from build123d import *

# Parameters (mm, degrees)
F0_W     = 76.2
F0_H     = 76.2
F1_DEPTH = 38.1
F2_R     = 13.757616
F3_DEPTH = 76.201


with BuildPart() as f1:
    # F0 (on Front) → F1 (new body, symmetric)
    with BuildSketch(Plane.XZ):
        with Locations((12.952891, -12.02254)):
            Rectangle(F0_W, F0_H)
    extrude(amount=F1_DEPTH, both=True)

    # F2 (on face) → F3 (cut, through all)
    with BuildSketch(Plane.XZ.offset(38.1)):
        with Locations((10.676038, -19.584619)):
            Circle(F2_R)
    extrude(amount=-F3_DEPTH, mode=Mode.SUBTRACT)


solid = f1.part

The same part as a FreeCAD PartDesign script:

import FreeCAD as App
import Part
import Sketcher
Q = App.Units.Quantity


def add_polygon(sketch, points):
    """Adds a closed chain of lines whose ends are joined by coincident constraints."""
    first, n = sketch.GeometryCount, len(points)
    for a, b in zip(points, points[1:] + points[:1]):
        sketch.addGeometry(Part.LineSegment(App.Vector(*a, 0), App.Vector(*b, 0)), False)
    for i in range(n):
        sketch.addConstraint(Sketcher.Constraint("Coincident", first + i, 2, first + (i + 1) % n, 1))

doc = App.newDocument("Part")
body = doc.addObject("PartDesign::Body", "Body")

sketch1 = body.newObject("Sketcher::SketchObject", "Sketch")
sketch1.AttachmentSupport = (doc.getObject("XZ_Plane"), [""])
sketch1.MapMode = "FlatFace"
add_polygon(sketch1, [(-25.147109, 26.07746), (-25.147109, -50.12254), (51.052891, -50.12254), (51.052891, 26.07746)])
sketch1.addConstraint(Sketcher.Constraint("Vertical", 0))
sketch1.addConstraint(Sketcher.Constraint("Horizontal", 1))
sketch1.addConstraint(Sketcher.Constraint("Vertical", 2))
sketch1.addConstraint(Sketcher.Constraint("Horizontal", 3))
sketch1.addConstraint(Sketcher.Constraint("Equal", 3, 0))
sketch1.addConstraint(Sketcher.Constraint("DistanceX", 1, 1, 1, 2, Q("3 in")))
sketch1.addConstraint(Sketcher.Constraint("DistanceX", 0, 2, -1, 1, 25.147109))
sketch1.addConstraint(Sketcher.Constraint("DistanceY", 0, 2, -1, 1, 50.12254))
pad1 = body.newObject("PartDesign::Pad", "Pad")
pad1.Profile = sketch1
pad1.Length = Q("3 in")
pad1.Midplane = True

sketch2 = body.newObject("Sketcher::SketchObject", "Sketch001")
sketch2.AttachmentSupport = (doc.getObject("XZ_Plane"), [""])
sketch2.MapMode = "FlatFace"
sketch2.AttachmentOffset = App.Placement(App.Vector(0, 0, 1.5 * 25.4), App.Rotation())
sketch2.addGeometry(Part.Circle(App.Vector(10.676038, -19.584619, 0), App.Vector(0, 0, 1), 13.757616), False)
sketch2.addConstraint(Sketcher.Constraint("Diameter", 0, 27.515232))
sketch2.addConstraint(Sketcher.Constraint("DistanceY", 0, 3, -1, 1, 19.584619))
sketch2.addConstraint(Sketcher.Constraint("DistanceX", -1, 1, 0, 3, 10.676038))
pocket1 = body.newObject("PartDesign::Pocket", "Pocket")
pocket1.Profile = sketch2
pocket1.Type = "ThroughAll"

doc.recompute()
